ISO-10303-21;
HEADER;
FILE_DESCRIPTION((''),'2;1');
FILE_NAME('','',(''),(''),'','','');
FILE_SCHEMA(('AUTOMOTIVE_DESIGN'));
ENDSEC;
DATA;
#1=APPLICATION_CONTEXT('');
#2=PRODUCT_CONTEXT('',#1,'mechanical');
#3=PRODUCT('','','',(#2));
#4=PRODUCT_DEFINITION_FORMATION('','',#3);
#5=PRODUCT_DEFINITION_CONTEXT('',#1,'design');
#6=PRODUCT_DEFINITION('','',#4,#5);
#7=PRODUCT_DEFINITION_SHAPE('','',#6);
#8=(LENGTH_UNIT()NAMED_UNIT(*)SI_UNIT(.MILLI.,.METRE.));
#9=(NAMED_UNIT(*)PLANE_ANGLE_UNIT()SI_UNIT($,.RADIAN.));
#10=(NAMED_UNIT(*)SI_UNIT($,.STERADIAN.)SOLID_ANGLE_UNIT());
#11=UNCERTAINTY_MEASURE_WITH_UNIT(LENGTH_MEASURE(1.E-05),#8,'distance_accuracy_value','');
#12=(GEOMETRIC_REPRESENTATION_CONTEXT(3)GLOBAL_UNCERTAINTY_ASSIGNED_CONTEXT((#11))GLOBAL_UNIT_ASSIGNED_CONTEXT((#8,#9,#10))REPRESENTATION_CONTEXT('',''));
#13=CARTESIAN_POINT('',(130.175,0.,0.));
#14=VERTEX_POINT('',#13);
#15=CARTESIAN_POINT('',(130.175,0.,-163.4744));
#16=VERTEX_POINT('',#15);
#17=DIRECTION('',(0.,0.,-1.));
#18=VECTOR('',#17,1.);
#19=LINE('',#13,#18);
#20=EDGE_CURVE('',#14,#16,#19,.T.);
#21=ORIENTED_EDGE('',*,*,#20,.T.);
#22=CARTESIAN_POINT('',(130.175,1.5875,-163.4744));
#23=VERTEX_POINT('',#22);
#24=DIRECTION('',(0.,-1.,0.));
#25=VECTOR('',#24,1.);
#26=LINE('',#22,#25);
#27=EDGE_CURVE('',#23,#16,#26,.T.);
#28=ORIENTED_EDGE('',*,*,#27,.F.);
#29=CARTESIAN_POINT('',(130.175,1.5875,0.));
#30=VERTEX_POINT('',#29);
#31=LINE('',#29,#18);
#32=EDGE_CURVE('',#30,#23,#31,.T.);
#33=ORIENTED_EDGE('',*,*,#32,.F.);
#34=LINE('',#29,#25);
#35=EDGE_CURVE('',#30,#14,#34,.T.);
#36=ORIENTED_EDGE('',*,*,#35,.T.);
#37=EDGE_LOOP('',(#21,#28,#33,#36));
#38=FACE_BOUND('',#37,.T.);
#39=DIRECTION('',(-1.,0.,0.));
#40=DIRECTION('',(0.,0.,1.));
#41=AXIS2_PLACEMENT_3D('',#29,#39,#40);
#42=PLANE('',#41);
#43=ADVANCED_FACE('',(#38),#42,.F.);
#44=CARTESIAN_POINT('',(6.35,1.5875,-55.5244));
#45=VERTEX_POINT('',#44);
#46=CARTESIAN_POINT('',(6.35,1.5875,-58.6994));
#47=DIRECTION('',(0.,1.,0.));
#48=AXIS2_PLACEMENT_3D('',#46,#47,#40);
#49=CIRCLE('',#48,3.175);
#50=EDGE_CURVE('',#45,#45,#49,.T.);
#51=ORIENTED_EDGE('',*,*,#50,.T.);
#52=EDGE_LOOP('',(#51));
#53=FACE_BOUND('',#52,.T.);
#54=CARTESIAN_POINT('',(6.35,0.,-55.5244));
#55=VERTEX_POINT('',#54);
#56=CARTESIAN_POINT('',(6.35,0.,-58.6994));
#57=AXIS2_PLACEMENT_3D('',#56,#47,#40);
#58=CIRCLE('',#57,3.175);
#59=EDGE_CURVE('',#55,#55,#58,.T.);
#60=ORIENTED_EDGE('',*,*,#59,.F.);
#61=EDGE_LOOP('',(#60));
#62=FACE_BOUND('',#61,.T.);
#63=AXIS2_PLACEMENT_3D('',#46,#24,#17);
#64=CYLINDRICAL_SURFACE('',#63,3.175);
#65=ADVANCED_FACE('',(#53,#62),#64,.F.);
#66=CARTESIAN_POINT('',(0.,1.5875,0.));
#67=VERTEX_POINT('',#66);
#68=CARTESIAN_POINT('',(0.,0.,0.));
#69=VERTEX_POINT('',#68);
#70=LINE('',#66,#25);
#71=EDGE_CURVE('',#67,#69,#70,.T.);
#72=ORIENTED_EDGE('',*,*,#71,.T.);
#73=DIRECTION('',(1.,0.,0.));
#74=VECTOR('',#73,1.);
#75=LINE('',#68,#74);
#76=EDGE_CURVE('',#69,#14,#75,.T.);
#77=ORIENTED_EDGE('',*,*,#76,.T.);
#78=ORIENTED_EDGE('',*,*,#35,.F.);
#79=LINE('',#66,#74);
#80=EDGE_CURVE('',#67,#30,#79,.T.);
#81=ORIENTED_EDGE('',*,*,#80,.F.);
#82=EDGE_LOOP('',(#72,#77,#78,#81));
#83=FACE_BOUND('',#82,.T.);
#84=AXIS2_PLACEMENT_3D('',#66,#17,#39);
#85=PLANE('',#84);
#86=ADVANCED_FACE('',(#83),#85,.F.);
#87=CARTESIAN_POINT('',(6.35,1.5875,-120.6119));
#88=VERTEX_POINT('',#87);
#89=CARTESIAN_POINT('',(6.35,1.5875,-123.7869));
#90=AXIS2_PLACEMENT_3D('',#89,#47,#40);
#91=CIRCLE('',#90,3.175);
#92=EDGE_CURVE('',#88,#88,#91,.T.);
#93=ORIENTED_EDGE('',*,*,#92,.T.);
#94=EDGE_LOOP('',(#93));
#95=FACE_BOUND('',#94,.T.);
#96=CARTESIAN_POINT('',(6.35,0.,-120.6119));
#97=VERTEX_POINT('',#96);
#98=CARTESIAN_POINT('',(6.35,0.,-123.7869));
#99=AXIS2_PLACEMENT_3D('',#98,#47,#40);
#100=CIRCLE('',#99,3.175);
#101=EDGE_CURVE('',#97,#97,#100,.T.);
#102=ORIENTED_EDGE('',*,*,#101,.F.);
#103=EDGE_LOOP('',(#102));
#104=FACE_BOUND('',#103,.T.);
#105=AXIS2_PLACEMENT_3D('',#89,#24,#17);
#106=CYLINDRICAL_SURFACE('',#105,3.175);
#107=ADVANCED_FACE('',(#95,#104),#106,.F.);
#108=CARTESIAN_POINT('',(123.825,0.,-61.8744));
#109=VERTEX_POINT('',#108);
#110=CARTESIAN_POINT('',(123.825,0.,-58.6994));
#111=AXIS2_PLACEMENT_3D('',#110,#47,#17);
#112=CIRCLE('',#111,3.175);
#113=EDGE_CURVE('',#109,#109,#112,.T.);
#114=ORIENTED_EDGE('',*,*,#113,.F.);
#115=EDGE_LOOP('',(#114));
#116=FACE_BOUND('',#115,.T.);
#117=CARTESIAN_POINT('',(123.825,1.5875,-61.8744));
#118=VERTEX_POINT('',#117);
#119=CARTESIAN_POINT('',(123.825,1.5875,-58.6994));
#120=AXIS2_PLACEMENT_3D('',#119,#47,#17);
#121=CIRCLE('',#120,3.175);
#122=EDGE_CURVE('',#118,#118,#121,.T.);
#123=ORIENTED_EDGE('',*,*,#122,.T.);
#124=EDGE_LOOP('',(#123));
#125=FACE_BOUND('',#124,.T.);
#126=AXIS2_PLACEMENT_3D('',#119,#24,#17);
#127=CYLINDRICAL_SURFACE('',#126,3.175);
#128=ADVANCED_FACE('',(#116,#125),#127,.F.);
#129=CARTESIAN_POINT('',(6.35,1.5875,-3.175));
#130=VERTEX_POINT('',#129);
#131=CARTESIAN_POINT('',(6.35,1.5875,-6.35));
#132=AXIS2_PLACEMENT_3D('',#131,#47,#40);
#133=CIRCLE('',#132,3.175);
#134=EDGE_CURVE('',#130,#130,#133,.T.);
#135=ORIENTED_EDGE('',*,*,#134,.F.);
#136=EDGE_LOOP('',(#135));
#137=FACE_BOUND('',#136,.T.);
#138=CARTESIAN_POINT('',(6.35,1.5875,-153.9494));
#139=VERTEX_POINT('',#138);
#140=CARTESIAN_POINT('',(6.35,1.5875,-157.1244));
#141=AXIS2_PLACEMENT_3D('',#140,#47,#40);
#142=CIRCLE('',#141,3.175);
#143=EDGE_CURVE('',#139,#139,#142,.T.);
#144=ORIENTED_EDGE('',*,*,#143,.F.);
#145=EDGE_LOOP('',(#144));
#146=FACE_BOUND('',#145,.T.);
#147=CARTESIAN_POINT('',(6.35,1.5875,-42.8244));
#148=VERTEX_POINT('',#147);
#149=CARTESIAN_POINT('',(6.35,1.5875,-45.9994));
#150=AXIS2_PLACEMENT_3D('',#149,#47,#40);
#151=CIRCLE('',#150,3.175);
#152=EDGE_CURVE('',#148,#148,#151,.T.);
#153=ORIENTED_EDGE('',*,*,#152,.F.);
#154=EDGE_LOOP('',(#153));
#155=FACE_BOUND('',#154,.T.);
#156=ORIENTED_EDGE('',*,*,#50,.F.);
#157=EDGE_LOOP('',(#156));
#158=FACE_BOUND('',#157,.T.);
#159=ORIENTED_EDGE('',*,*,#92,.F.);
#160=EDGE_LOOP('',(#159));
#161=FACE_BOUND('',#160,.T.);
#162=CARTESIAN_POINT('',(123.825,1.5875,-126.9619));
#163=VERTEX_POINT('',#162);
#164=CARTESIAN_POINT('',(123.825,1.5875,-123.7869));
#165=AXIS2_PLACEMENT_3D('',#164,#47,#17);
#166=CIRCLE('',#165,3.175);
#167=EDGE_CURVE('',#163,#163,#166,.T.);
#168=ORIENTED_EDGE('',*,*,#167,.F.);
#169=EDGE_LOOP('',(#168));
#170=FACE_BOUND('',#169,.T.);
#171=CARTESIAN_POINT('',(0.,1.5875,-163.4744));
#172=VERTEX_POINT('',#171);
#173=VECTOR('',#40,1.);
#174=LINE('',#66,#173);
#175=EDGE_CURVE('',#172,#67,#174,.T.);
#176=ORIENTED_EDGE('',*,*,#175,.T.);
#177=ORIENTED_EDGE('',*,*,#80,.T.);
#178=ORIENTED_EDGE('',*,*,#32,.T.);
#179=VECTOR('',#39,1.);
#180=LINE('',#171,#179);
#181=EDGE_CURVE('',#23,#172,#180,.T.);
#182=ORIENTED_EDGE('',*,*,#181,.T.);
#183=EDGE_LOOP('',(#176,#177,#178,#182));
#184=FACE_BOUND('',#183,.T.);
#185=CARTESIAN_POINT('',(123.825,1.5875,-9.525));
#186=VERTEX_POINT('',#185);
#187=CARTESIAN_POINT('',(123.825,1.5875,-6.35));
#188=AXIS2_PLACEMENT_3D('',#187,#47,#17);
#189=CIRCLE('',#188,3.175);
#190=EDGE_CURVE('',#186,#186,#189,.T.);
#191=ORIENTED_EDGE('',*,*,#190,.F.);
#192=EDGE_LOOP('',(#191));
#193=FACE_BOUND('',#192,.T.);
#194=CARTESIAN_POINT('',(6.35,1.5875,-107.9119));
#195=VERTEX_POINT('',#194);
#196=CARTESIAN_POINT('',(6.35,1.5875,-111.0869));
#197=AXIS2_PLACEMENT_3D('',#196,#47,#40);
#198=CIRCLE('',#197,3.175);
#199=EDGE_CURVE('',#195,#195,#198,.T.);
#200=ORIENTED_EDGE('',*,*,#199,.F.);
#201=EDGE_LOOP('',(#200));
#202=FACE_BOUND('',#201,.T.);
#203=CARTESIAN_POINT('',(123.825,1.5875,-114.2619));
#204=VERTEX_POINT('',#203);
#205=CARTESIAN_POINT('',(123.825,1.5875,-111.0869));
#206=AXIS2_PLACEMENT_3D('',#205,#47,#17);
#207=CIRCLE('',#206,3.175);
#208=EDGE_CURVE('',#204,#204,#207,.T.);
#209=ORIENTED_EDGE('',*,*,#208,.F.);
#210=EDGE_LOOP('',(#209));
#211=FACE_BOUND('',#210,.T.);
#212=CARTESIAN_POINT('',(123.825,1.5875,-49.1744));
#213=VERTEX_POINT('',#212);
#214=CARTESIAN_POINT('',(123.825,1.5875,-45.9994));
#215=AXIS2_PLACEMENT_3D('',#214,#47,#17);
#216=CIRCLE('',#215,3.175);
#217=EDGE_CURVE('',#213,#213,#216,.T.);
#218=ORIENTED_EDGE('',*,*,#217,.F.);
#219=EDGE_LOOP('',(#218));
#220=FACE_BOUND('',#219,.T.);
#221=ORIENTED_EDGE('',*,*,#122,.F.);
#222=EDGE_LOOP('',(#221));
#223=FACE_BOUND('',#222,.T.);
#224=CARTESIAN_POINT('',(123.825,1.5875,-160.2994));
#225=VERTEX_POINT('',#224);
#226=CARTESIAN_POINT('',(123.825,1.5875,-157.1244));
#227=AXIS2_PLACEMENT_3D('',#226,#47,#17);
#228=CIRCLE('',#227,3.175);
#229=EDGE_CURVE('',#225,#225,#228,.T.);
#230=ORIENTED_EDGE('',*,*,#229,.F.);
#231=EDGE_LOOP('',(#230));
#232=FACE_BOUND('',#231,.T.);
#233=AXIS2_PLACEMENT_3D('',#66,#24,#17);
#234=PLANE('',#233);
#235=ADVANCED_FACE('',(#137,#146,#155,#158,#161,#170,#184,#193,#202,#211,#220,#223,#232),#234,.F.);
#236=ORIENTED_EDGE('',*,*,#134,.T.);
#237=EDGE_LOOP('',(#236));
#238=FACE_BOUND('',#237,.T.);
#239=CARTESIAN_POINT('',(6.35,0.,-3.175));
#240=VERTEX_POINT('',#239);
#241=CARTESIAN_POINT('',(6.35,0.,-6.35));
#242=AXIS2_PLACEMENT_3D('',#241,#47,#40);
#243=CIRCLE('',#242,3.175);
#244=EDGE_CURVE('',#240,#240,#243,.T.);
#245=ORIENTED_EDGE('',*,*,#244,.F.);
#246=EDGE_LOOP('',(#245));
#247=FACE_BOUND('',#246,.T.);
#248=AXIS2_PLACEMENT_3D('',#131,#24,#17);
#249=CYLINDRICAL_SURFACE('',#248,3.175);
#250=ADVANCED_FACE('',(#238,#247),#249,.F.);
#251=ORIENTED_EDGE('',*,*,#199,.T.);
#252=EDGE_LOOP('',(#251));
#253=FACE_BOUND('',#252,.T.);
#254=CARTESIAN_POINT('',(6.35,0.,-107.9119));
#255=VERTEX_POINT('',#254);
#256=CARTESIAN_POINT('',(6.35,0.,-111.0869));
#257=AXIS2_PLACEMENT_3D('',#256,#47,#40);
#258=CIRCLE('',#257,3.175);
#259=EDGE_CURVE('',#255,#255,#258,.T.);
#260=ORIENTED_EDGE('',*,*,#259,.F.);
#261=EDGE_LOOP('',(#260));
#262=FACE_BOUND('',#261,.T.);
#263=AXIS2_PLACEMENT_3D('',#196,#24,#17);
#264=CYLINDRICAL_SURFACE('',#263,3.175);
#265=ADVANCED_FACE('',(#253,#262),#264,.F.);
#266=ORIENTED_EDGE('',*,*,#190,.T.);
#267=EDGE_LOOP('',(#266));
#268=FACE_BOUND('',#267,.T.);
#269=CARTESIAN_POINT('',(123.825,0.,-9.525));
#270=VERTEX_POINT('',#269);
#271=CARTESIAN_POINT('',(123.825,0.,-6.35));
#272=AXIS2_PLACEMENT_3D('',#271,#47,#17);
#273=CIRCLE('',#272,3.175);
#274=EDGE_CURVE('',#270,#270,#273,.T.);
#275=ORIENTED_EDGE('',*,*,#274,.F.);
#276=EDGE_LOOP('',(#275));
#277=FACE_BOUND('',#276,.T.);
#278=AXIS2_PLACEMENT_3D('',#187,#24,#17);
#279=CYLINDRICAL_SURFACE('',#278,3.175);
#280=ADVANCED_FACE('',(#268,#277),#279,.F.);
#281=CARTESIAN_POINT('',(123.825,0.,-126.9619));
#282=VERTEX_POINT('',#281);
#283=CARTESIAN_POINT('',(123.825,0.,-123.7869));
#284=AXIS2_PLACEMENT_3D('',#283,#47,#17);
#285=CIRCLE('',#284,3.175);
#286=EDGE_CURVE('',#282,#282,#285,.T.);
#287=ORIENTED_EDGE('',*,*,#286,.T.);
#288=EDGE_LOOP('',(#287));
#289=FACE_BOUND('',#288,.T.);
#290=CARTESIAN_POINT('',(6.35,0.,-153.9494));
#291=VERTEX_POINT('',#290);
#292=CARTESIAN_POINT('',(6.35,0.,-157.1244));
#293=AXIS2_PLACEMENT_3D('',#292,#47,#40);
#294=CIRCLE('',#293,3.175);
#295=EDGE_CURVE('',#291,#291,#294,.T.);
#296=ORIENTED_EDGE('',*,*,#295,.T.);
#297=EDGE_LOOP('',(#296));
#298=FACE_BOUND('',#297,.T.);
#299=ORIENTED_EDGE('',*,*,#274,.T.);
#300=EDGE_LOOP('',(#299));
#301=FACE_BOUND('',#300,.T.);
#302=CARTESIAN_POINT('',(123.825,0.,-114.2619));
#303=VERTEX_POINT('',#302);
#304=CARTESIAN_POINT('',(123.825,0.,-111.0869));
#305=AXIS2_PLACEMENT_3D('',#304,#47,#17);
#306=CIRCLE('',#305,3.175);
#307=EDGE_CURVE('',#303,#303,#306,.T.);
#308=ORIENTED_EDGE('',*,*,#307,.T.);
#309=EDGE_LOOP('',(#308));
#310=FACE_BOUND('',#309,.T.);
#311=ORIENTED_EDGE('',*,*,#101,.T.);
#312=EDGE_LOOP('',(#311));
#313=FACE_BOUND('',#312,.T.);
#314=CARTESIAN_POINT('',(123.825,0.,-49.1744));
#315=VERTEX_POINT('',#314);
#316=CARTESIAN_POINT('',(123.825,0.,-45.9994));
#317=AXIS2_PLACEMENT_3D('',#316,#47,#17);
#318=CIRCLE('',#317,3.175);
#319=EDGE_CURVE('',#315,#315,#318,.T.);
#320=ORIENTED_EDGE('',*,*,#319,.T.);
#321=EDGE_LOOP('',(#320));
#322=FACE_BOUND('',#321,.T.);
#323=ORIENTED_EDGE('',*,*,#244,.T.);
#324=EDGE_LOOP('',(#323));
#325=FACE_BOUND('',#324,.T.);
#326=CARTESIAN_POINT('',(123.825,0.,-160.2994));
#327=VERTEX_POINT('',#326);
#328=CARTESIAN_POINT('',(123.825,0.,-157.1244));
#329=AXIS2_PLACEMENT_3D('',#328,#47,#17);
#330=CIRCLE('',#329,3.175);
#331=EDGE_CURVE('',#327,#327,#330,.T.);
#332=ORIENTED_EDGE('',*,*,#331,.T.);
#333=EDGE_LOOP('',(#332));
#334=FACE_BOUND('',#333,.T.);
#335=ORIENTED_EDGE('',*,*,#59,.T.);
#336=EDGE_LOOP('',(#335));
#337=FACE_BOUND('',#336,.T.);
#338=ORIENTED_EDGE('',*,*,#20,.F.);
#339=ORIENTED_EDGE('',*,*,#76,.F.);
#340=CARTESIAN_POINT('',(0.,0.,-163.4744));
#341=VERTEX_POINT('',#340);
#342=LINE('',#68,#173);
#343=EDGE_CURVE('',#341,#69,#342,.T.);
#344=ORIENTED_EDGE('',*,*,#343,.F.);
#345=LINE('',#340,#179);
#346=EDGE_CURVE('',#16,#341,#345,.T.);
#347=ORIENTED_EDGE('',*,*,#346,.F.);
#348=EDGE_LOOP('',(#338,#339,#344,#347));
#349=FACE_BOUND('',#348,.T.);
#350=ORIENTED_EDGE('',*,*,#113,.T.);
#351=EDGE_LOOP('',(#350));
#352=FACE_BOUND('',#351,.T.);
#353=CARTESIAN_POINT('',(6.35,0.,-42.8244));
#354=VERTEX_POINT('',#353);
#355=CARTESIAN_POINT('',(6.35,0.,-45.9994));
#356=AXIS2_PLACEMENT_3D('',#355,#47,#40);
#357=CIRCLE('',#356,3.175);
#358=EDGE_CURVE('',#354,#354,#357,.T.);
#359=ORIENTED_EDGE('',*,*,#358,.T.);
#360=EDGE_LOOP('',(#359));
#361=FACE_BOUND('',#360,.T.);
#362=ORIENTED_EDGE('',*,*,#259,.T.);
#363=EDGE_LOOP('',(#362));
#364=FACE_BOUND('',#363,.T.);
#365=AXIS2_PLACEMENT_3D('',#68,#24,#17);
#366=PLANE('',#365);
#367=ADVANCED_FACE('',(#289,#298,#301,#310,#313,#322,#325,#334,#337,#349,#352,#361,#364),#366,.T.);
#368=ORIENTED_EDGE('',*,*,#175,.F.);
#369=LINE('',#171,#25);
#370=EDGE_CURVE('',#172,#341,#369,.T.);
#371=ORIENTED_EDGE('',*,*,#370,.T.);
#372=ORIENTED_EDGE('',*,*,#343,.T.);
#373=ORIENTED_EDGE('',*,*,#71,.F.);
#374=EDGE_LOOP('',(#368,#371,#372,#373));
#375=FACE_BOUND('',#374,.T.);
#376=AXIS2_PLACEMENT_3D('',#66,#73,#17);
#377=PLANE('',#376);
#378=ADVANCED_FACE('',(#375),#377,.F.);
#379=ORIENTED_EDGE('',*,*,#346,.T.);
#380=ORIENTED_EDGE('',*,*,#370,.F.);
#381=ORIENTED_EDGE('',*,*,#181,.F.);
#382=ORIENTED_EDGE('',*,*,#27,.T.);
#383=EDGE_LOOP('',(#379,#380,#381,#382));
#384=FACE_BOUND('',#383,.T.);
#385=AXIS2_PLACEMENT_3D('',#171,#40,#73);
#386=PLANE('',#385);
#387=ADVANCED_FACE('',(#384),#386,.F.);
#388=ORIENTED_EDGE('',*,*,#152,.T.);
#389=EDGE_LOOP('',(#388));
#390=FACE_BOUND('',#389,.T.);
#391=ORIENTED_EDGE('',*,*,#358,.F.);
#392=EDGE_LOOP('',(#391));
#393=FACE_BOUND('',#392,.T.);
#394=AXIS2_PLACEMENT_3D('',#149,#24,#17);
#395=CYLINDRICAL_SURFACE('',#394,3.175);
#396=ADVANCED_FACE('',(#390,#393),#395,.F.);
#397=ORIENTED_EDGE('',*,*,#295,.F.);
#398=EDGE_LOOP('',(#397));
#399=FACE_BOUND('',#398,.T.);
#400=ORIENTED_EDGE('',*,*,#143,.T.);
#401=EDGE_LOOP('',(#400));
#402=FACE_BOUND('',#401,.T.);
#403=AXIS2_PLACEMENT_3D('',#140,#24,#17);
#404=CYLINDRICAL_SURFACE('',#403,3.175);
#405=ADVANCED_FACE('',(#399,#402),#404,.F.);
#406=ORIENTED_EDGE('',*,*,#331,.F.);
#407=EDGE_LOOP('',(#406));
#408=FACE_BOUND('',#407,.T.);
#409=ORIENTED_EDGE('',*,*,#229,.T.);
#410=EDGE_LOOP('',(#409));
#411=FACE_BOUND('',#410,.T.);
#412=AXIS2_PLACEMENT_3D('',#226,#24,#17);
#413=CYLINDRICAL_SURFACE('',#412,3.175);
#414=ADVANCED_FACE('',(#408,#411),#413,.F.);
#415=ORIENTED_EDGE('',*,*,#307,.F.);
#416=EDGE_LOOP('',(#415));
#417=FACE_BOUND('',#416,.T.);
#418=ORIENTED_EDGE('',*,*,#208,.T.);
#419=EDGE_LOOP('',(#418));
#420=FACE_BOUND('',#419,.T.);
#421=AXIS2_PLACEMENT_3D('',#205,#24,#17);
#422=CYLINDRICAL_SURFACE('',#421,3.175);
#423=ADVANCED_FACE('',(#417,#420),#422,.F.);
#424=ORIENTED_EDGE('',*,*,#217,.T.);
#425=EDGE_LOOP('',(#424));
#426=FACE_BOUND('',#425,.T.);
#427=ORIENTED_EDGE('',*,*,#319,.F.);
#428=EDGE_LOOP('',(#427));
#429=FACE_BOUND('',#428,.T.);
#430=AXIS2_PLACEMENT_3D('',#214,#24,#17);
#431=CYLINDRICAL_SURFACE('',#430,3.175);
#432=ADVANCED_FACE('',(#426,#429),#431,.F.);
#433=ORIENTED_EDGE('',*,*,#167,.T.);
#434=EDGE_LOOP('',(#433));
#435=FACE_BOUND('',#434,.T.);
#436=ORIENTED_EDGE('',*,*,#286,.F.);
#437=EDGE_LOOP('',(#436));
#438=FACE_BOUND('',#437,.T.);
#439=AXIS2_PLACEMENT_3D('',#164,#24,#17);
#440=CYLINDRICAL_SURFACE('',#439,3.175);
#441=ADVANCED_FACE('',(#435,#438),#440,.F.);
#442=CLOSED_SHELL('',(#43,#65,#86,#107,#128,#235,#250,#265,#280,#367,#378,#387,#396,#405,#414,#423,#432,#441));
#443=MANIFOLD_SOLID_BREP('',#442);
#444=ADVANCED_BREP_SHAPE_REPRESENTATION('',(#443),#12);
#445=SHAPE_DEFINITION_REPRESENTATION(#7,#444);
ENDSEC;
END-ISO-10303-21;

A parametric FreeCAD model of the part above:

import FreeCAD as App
import Part
import Sketcher
Q = App.Units.Quantity

doc = App.newDocument("Part")
params = doc.addObject("Spreadsheet::Sheet", "Params")
for row, (alias, value) in enumerate([
    ("sketch1_diameter", "0.25 in"),
    ("sketch1_width", "5.125 in"),
    ("sketch1_height", "6.436 in"),
    ("pad1_length", "0.0625 in"),
], start=1):
    params.set(f"A{row}", alias)
    params.set(f"B{row}", "=" + value)
    params.setAlias(f"B{row}", alias)

body = doc.addObject("PartDesign::Body", "Body")

# Sketch on XZ plane
sketch1 = body.newObject("Sketcher::SketchObject", "Sketch")
sketch1.AttachmentSupport = (doc.getObject("XZ_Plane"), [""])
sketch1.MapMode = "FlatFace"
sketch1.addGeometry([
    Part.LineSegment(App.Vector(0, -163.4744, 0), App.Vector(0, 0, 0)),  # 0
    Part.LineSegment(App.Vector(0, 0, 0), App.Vector(130.175, 0, 0)),  # 1
    Part.LineSegment(App.Vector(130.175, 0, 0), App.Vector(130.175, -163.4744, 0)),  # 2
    Part.LineSegment(App.Vector(130.175, -163.4744, 0), App.Vector(0, -163.4744, 0)),  # 3
    Part.Circle(App.Vector(6.35, -6.35, 0), App.Vector(0, 0, 1), 3.175),  # 4
    Part.Circle(App.Vector(6.35, -45.9994, 0), App.Vector(0, 0, 1), 3.175),  # 5
    Part.Circle(App.Vector(6.35, -58.6994, 0), App.Vector(0, 0, 1), 3.175),  # 6
    Part.Circle(App.Vector(123.825, -6.35, 0), App.Vector(0, 0, 1), 3.175),  # 7
    Part.Circle(App.Vector(123.825, -45.9994, 0), App.Vector(0, 0, 1), 3.175),  # 8
    Part.Circle(App.Vector(123.825, -58.6994, 0), App.Vector(0, 0, 1), 3.175),  # 9
    Part.Circle(App.Vector(6.35, -111.0869, 0), App.Vector(0, 0, 1), 3.175),  # 10
    Part.Circle(App.Vector(6.35, -123.7869, 0), App.Vector(0, 0, 1), 3.175),  # 11
    Part.Circle(App.Vector(6.35, -157.1244, 0), App.Vector(0, 0, 1), 3.175),  # 12
    Part.Circle(App.Vector(123.825, -111.0869, 0), App.Vector(0, 0, 1), 3.175),  # 13
    Part.Circle(App.Vector(123.825, -123.7869, 0), App.Vector(0, 0, 1), 3.175),  # 14
    Part.Circle(App.Vector(123.825, -157.1244, 0), App.Vector(0, 0, 1), 3.175),  # 15
], False)
sketch1.addConstraint([
    Sketcher.Constraint("Coincident", 0, 2, 1, 1),
    Sketcher.Constraint("Coincident", 1, 2, 2, 1),
    Sketcher.Constraint("Coincident", 2, 2, 3, 1),
    Sketcher.Constraint("Coincident", 3, 2, 0, 1),
    Sketcher.Constraint("Vertical", 0),
    Sketcher.Constraint("Horizontal", 1),
    Sketcher.Constraint("Vertical", 2),
    Sketcher.Constraint("Horizontal", 3),
    Sketcher.Constraint("Coincident", 0, 2, -1, 1),
    Sketcher.Constraint("Equal", 4, 5),
    Sketcher.Constraint("Equal", 5, 6),
    Sketcher.Constraint("Equal", 6, 7),
    Sketcher.Constraint("Equal", 7, 8),
    Sketcher.Constraint("Equal", 8, 9),
    Sketcher.Constraint("Equal", 9, 10),
    Sketcher.Constraint("Equal", 10, 11),
    Sketcher.Constraint("Equal", 11, 12),
    Sketcher.Constraint("Equal", 12, 13),
    Sketcher.Constraint("Equal", 13, 14),
    Sketcher.Constraint("Equal", 14, 15),
    Sketcher.Constraint("Horizontal", 4, 3, 7, 3),
    Sketcher.Constraint("Horizontal", 5, 3, 8, 3),
    Sketcher.Constraint("Horizontal", 6, 3, 9, 3),
    Sketcher.Constraint("Horizontal", 10, 3, 13, 3),
    Sketcher.Constraint("Horizontal", 11, 3, 14, 3),
    Sketcher.Constraint("Horizontal", 12, 3, 15, 3),
    Sketcher.Constraint("Vertical", 4, 3, 5, 3),
    Sketcher.Constraint("Vertical", 5, 3, 6, 3),
    Sketcher.Constraint("Vertical", 7, 3, 8, 3),
    Sketcher.Constraint("Vertical", 8, 3, 9, 3),
    Sketcher.Constraint("Vertical", 6, 3, 10, 3),
    Sketcher.Constraint("Vertical", 10, 3, 11, 3),
    Sketcher.Constraint("Vertical", 11, 3, 12, 3),
    Sketcher.Constraint("Vertical", 9, 3, 13, 3),
    Sketcher.Constraint("Vertical", 13, 3, 14, 3),
    Sketcher.Constraint("Vertical", 14, 3, 15, 3),
    Sketcher.Constraint("Diameter", 4, Q("0.25 in")),
    Sketcher.Constraint("DistanceY", 6, 3, 5, 3, Q("0.5 in")),
    Sketcher.Constraint("DistanceY", 11, 3, 10, 3, Q("0.5 in")),
    Sketcher.Constraint("DistanceX", 1, 1, 1, 2, Q("5.125 in")),
    Sketcher.Constraint("DistanceY", 0, 1, 0, 2, Q("6.436 in")),
    Sketcher.Constraint("DistanceX", -1, 1, 4, 3, Q("0.25 in")),
    Sketcher.Constraint("DistanceY", 4, 3, -1, 1, Q("0.25 in")),
    Sketcher.Constraint("DistanceX", 7, 3, 1, 2, Q("0.25 in")),
    Sketcher.Constraint("DistanceY", 2, 2, 15, 3, Q("0.25 in")),
    Sketcher.Constraint("DistanceY", 5, 3, -1, 1, Q("1.811 in")),
    Sketcher.Constraint("DistanceY", 10, 3, 6, 3, Q("2.0625 in")),
])
sketch1.setExpression("Constraints[36]", "Params.sketch1_diameter")
sketch1.setExpression("Constraints[39]", "Params.sketch1_width")
sketch1.setExpression("Constraints[40]", "Params.sketch1_height")
pad1 = body.newObject("PartDesign::Pad", "Pad")
pad1.Profile = sketch1
pad1.setExpression("Length", "Params.pad1_length")
pad1.Reversed = True

doc.recompute()
